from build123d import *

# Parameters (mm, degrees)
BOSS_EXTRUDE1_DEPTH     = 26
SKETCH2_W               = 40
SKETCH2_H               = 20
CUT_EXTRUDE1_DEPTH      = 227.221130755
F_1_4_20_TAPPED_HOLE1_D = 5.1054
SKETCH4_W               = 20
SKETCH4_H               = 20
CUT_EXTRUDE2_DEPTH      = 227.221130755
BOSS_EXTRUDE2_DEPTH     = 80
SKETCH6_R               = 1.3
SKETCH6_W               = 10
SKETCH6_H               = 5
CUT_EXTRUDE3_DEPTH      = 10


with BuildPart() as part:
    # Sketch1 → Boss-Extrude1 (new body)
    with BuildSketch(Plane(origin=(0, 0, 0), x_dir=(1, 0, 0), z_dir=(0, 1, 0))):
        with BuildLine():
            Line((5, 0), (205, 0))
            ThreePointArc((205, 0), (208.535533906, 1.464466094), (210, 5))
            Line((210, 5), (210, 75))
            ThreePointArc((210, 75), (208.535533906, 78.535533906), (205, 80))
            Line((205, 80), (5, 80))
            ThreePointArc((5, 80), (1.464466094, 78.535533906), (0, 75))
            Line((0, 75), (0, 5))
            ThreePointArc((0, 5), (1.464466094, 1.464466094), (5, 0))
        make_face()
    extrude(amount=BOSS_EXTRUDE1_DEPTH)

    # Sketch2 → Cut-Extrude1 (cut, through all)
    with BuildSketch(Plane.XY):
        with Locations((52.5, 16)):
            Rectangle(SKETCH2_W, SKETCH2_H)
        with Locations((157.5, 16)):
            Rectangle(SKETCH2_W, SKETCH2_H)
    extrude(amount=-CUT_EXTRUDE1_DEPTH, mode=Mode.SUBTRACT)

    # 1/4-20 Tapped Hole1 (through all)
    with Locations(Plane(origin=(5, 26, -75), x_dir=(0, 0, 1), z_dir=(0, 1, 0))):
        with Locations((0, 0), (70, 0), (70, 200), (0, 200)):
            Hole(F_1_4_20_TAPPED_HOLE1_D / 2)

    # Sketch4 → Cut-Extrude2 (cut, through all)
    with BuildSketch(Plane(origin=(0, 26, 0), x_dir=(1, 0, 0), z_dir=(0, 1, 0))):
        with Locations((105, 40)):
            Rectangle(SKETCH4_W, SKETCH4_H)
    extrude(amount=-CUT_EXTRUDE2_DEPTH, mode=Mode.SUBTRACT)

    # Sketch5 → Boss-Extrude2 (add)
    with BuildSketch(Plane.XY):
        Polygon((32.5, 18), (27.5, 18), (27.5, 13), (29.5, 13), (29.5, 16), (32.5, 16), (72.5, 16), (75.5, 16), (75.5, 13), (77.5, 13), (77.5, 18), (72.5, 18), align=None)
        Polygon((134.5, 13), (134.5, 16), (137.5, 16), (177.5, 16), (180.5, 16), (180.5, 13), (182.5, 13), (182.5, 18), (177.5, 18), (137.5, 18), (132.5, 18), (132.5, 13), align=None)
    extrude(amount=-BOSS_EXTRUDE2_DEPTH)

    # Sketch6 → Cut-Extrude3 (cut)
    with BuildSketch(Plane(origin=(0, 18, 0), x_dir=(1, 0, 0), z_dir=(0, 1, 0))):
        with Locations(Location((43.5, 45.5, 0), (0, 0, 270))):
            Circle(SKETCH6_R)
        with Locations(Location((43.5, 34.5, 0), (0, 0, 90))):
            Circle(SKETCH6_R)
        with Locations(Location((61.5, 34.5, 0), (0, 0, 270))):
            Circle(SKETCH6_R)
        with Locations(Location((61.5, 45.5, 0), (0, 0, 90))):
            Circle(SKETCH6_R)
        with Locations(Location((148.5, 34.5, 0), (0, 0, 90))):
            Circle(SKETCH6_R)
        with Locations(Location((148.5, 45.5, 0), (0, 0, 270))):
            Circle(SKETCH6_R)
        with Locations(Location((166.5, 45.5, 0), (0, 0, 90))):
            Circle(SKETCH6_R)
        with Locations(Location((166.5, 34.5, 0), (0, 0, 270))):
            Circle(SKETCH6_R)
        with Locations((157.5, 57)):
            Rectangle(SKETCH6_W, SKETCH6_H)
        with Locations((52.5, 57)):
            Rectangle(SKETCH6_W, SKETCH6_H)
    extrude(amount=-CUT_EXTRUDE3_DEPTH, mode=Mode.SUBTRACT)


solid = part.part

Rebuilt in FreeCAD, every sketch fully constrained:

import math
import FreeCAD as App
import Part
import Sketcher
from FreeCAD import Vector


def add_polygon(sketch, points):
    """Adds a closed chain of lines whose ends are joined by coincident constraints."""
    first, n = sketch.GeometryCount, len(points)
    for a, b in zip(points, points[1:] + points[:1]):
        sketch.addGeometry(Part.LineSegment(App.Vector(*a, 0), App.Vector(*b, 0)), False)
    for i in range(n):
        sketch.addConstraint(Sketcher.Constraint("Coincident", first + i, 2, first + (i + 1) % n, 1))

doc = App.newDocument("Part")
body = doc.addObject("PartDesign::Body", "Body")

sketch1 = body.newObject("Sketcher::SketchObject", "Sketch")
sketch1.AttachmentSupport = (doc.getObject("XZ_Plane"), [""])
sketch1.MapMode = "FlatFace"
sketch1.addGeometry(Part.LineSegment(Vector(5, 0, 0), Vector(205, 0, 0)), False)
sketch1.addGeometry(Part.ArcOfCircle(Part.Circle(Vector(205, -5, 0), Vector(0, 0, 1), 5), math.radians(0), math.radians(90)), False)
sketch1.addGeometry(Part.LineSegment(Vector(210, -5, 0), Vector(210, -75, 0)), False)
sketch1.addGeometry(Part.ArcOfCircle(Part.Circle(Vector(205, -75, 0), Vector(0, 0, 1), 5), math.radians(-90), math.radians(0)), False)
sketch1.addGeometry(Part.LineSegment(Vector(205, -80, 0), Vector(5, -80, 0)), False)
sketch1.addGeometry(Part.ArcOfCircle(Part.Circle(Vector(5, -75, 0), Vector(0, 0, 1), 5), math.radians(180), math.radians(270)), False)
sketch1.addGeometry(Part.LineSegment(Vector(0, -75, 0), Vector(0, -5, 0)), False)
sketch1.addGeometry(Part.ArcOfCircle(Part.Circle(Vector(5, -5, 0), Vector(0, 0, 1), 5), math.radians(90), math.radians(180)), False)
sketch1.addConstraint(Sketcher.Constraint("Tangent", 0, 2, 1, 2))
sketch1.addConstraint(Sketcher.Constraint("Tangent", 1, 1, 2, 1))
sketch1.addConstraint(Sketcher.Constraint("Tangent", 2, 2, 3, 2))
sketch1.addConstraint(Sketcher.Constraint("Tangent", 3, 1, 4, 1))
sketch1.addConstraint(Sketcher.Constraint("Tangent", 4, 2, 5, 2))
sketch1.addConstraint(Sketcher.Constraint("Tangent", 5, 1, 6, 1))
sketch1.addConstraint(Sketcher.Constraint("Tangent", 6, 2, 7, 2))
sketch1.addConstraint(Sketcher.Constraint("Tangent", 7, 1, 0, 1))
sketch1.addConstraint(Sketcher.Constraint("Horizontal", 0))
sketch1.addConstraint(Sketcher.Constraint("Vertical", 2))
sketch1.addConstraint(Sketcher.Constraint("Horizontal", 4))
sketch1.addConstraint(Sketcher.Constraint("Vertical", 6))
sketch1.addConstraint(Sketcher.Constraint("Equal", 1, 3))
sketch1.addConstraint(Sketcher.Constraint("Equal", 3, 5))
sketch1.addConstraint(Sketcher.Constraint("Equal", 5, 7))
sketch1.addConstraint(Sketcher.Constraint("PointOnObject", 0, 2, -1))
sketch1.addConstraint(Sketcher.Constraint("PointOnObject", 5, 1, -2))
sketch1.addConstraint(Sketcher.Constraint("Radius", 1, 5.0))
sketch1.addConstraint(Sketcher.Constraint("DistanceX", 0, 1, 0, 2, 200.0))
sketch1.addConstraint(Sketcher.Constraint("DistanceY", 2, 2, 2, 1, 70.0))
pad1 = body.newObject("PartDesign::Pad", "Pad")
pad1.Profile = sketch1
pad1.Length = 26
pad1.Reversed = True

sketch2 = body.newObject("Sketcher::SketchObject", "Sketch001")
sketch2.AttachmentSupport = (doc.getObject("XY_Plane"), [""])
sketch2.MapMode = "FlatFace"
add_polygon(sketch2, [(32, 26), (32, 6), (72, 6), (72, 26)])
add_polygon(sketch2, [(138, 26), (138, 6), (178, 6), (178, 26)])
sketch2.addConstraint(Sketcher.Constraint("Vertical", 0))
sketch2.addConstraint(Sketcher.Constraint("Horizontal", 1))
sketch2.addConstraint(Sketcher.Constraint("Vertical", 2))
sketch2.addConstraint(Sketcher.Constraint("Horizontal", 3))
sketch2.addConstraint(Sketcher.Constraint("Vertical", 4))
sketch2.addConstraint(Sketcher.Constraint("Horizontal", 5))
sketch2.addConstraint(Sketcher.Constraint("Vertical", 6))
sketch2.addConstraint(Sketcher.Constraint("Horizontal", 7))
sketch2.addConstraint(Sketcher.Constraint("Horizontal", 1, 2, 4, 2))
sketch2.addConstraint(Sketcher.Constraint("Horizontal", 3, 2, 6, 2))
sketch2.addConstraint(Sketcher.Constraint("Equal", 3, 5))
sketch2.addConstraint(Sketcher.Constraint("DistanceX", 1, 1, 1, 2, 40.0))
sketch2.addConstraint(Sketcher.Constraint("DistanceY", 0, 2, 0, 1, 20.0))
sketch2.addConstraint(Sketcher.Constraint("DistanceY", -1, 1, 0, 2, 6.0))
sketch2.addConstraint(Sketcher.Constraint("DistanceX", 1, 2, 4, 2, 65.0))
sketch2.addConstraint(Sketcher.Constraint("DistanceX", -1, 1, 0, 2, 32.5))
pocket1 = body.newObject("PartDesign::Pocket", "Pocket")
pocket1.Profile = sketch2
pocket1.Type = "ThroughAll"

sketch3 = body.newObject("Sketcher::SketchObject", "Sketch002")
sketch3.AttachmentSupport = (doc.getObject("XZ_Plane"), [""])
sketch3.MapMode = "FlatFace"
sketch3.AttachmentOffset = App.Placement(Vector(0, 0, -26), App.Rotation())
sketch3.addGeometry(Part.Circle(Vector(5, -75, 0), Vector(0, 0, 1), 2.6), False)
sketch3.addGeometry(Part.Circle(Vector(5, -5, 0), Vector(0, 0, 1), 2.6), False)
sketch3.addGeometry(Part.Circle(Vector(205, -5, 0), Vector(0, 0, 1), 2.6), False)
sketch3.addGeometry(Part.Circle(Vector(205, -75, 0), Vector(0, 0, 1), 2.6), False)
sketch3.addConstraint(Sketcher.Constraint("Equal", 0, 1))
sketch3.addConstraint(Sketcher.Constraint("Equal", 1, 2))
sketch3.addConstraint(Sketcher.Constraint("Equal", 2, 3))
sketch3.addConstraint(Sketcher.Constraint("Horizontal", 1, 3, 2, 3))
sketch3.addConstraint(Sketcher.Constraint("Horizontal", 0, 3, 3, 3))
sketch3.addConstraint(Sketcher.Constraint("Vertical", 0, 3, 1, 3))
sketch3.addConstraint(Sketcher.Constraint("Vertical", 2, 3, 3, 3))
sketch3.addConstraint(Sketcher.Constraint("DistanceX", -1, 1, 0, 3, 5.0))
sketch3.addConstraint(Sketcher.Constraint("DistanceY", 0, 3, -1, 1, 75.0))
sketch3.addConstraint(Sketcher.Constraint("DistanceY", 1, 3, -1, 1, 5.0))
sketch3.addConstraint(Sketcher.Constraint("DistanceX", -1, 1, 2, 3, 205.0))
sketch3.addConstraint(Sketcher.Constraint("Diameter", 0, 5.1054))
doc.recompute()
hole = body.newObject("PartDesign::Hole", "Hole")
hole.Profile = sketch3
hole.ThreadType = "None"
hole.Diameter = 5.1054
hole.DepthType = "ThroughAll"
hole.Reversed = True

sketch4 = body.newObject("Sketcher::SketchObject", "Sketch003")
sketch4.AttachmentSupport = (doc.getObject("XZ_Plane"), [""])
sketch4.MapMode = "FlatFace"
sketch4.AttachmentOffset = App.Placement(Vector(0, 0, -26), App.Rotation())
add_polygon(sketch4, [(95, -50), (95, -30), (115, -30), (115, -50)])
sketch4.addConstraint(Sketcher.Constraint("Vertical", 0))
sketch4.addConstraint(Sketcher.Constraint("Horizontal", 1))
sketch4.addConstraint(Sketcher.Constraint("Vertical", 2))
sketch4.addConstraint(Sketcher.Constraint("Horizontal", 3))
sketch4.addConstraint(Sketcher.Constraint("Equal", 3, 0))
sketch4.addConstraint(Sketcher.Constraint("DistanceX", 1, 1, 1, 2, 20.0))
sketch4.addConstraint(Sketcher.Constraint("DistanceX", -1, 1, 0, 2, 95.0))
sketch4.addConstraint(Sketcher.Constraint("DistanceY", 0, 2, -1, 1, 30.0))
pocket2 = body.newObject("PartDesign::Pocket", "Pocket001")
pocket2.Profile = sketch4
pocket2.Type = "ThroughAll"
pocket2.Reversed = True

sketch5 = body.newObject("Sketcher::SketchObject", "Sketch004")
sketch5.AttachmentSupport = (doc.getObject("XY_Plane"), [""])
sketch5.MapMode = "FlatFace"
add_polygon(sketch5, [(27.5, 18), (27.5, 13), (29.5, 13), (29.5, 16), (75.5, 16), (75.5, 13), (77.5, 13), (77.5, 18)])
add_polygon(sketch5, [(134.5, 13), (134.5, 16), (180.5, 16), (180.5, 13), (182.5, 13), (182.5, 18), (132.5, 18), (132.5, 13)])
sketch5.addConstraint(Sketcher.Constraint("Vertical", 0))
sketch5.addConstraint(Sketcher.Constraint("Horizontal", 1))
sketch5.addConstraint(Sketcher.Constraint("Vertical", 2))
sketch5.addConstraint(Sketcher.Constraint("Horizontal", 3))
sketch5.addConstraint(Sketcher.Constraint("Vertical", 4))
sketch5.addConstraint(Sketcher.Constraint("Horizontal", 5))
sketch5.addConstraint(Sketcher.Constraint("Vertical", 6))
sketch5.addConstraint(Sketcher.Constraint("Horizontal", 7))
sketch5.addConstraint(Sketcher.Constraint("Vertical", 8))
sketch5.addConstraint(Sketcher.Constraint("Horizontal", 9))
sketch5.addConstraint(Sketcher.Constraint("Vertical", 10))
sketch5.addConstraint(Sketcher.Constraint("Horizontal", 11))
sketch5.addConstraint(Sketcher.Constraint("Vertical", 12))
sketch5.addConstraint(Sketcher.Constraint("Horizontal", 13))
sketch5.addConstraint(Sketcher.Constraint("Vertical", 14))
sketch5.addConstraint(Sketcher.Constraint("Horizontal", 15))
sketch5.addConstraint(Sketcher.Constraint("Horizontal", 1, 2, 4, 2))
sketch5.addConstraint(Sketcher.Constraint("Horizontal", 3, 2, 8, 2))
sketch5.addConstraint(Sketcher.Constraint("Horizontal", 5, 2, 10, 2))
sketch5.addConstraint(Sketcher.Constraint("Horizontal", 7, 2, 12, 2))
sketch5.addConstraint(Sketcher.Constraint("Horizontal", 11, 2, 14, 2))
sketch5.addConstraint(Sketcher.Constraint("Equal", 1, 5))
sketch5.addConstraint(Sketcher.Constraint("Equal", 3, 9))
sketch5.addConstraint(Sketcher.Constraint("Equal", 5, 11))
sketch5.addConstraint(Sketcher.Constraint("Equal", 7, 13))
sketch5.addConstraint(Sketcher.Constraint("DistanceX", 1, 1, 1, 2, 2.0))
sketch5.addConstraint(Sketcher.Constraint("DistanceX", 3, 1, 3, 2, 46.0))
sketch5.addConstraint(Sketcher.Constraint("DistanceY", 0, 2, 0, 1, 5.0))
sketch5.addConstraint(Sketcher.Constraint("DistanceY", 2, 1, 2, 2, 3.0))
sketch5.addConstraint(Sketcher.Constraint("DistanceY", -1, 1, 0, 2, 13.0))
sketch5.addConstraint(Sketcher.Constraint("DistanceX", 6, 2, 8, 2, 57.0))
sketch5.addConstraint(Sketcher.Constraint("DistanceX", -1, 1, 0, 2, 27.5))
pad2 = body.newObject("PartDesign::Pad", "Pad001")
pad2.Profile = sketch5
pad2.Length = 80
pad2.Reversed = True

sketch6 = body.newObject("Sketcher::SketchObject", "Sketch005")
sketch6.AttachmentSupport = (doc.getObject("XZ_Plane"), [""])
sketch6.MapMode = "FlatFace"
sketch6.AttachmentOffset = App.Placement(Vector(0, 0, -18), App.Rotation())
sketch6.addGeometry(Part.Circle(Vector(43.5, -45.5, 0), Vector(0, 0, 1), 1.3), False)
sketch6.addGeometry(Part.Circle(Vector(43.5, -34.5, 0), Vector(0, 0, 1), 1.3), False)
sketch6.addGeometry(Part.Circle(Vector(61.5, -34.5, 0), Vector(0, 0, 1), 1.3), False)
sketch6.addGeometry(Part.Circle(Vector(61.5, -45.5, 0), Vector(0, 0, 1), 1.3), False)
sketch6.addGeometry(Part.Circle(Vector(148.5, -34.5, 0), Vector(0, 0, 1), 1.3), False)
sketch6.addGeometry(Part.Circle(Vector(148.5, -45.5, 0), Vector(0, 0, 1), 1.3), False)
sketch6.addGeometry(Part.Circle(Vector(166.5, -45.5, 0), Vector(0, 0, 1), 1.3), False)
sketch6.addGeometry(Part.Circle(Vector(166.5, -34.5, 0), Vector(0, 0, 1), 1.3), False)
add_polygon(sketch6, [(152.5, -59.5), (152.5, -54.5), (162.5, -54.5), (162.5, -59.5)])
add_polygon(sketch6, [(47.5, -59.5), (47.5, -54.5), (57.5, -54.5), (57.5, -59.5)])
sketch6.addConstraint(Sketcher.Constraint("Vertical", 8))
sketch6.addConstraint(Sketcher.Constraint("Horizontal", 9))
sketch6.addConstraint(Sketcher.Constraint("Vertical", 10))
sketch6.addConstraint(Sketcher.Constraint("Horizontal", 11))
sketch6.addConstraint(Sketcher.Constraint("Vertical", 12))
sketch6.addConstraint(Sketcher.Constraint("Horizontal", 13))
sketch6.addConstraint(Sketcher.Constraint("Vertical", 14))
sketch6.addConstraint(Sketcher.Constraint("Horizontal", 15))
sketch6.addConstraint(Sketcher.Constraint("Equal", 0, 1))
sketch6.addConstraint(Sketcher.Constraint("Equal", 1, 2))
sketch6.addConstraint(Sketcher.Constraint("Equal", 2, 3))
sketch6.addConstraint(Sketcher.Constraint("Equal", 3, 4))
sketch6.addConstraint(Sketcher.Constraint("Equal", 4, 5))
sketch6.addConstraint(Sketcher.Constraint("Equal", 5, 6))
sketch6.addConstraint(Sketcher.Constraint("Equal", 6, 7))
sketch6.addConstraint(Sketcher.Constraint("Horizontal", 1, 3, 2, 3))
sketch6.addConstraint(Sketcher.Constraint("Horizontal", 0, 3, 3, 3))
sketch6.addConstraint(Sketcher.Constraint("Horizontal", 2, 3, 4, 3))
sketch6.addConstraint(Sketcher.Constraint("Horizontal", 3, 3, 5, 3))
sketch6.addConstraint(Sketcher.Constraint("Horizontal", 5, 3, 6, 3))
sketch6.addConstraint(Sketcher.Constraint("Horizontal", 4, 3, 7, 3))
sketch6.addConstraint(Sketcher.Constraint("Horizontal", 9, 2, 12, 2))
sketch6.addConstraint(Sketcher.Constraint("Horizontal", 11, 2, 14, 2))
sketch6.addConstraint(Sketcher.Constraint("Vertical", 0, 3, 1, 3))
sketch6.addConstraint(Sketcher.Constraint("Vertical", 2, 3, 3, 3))
sketch6.addConstraint(Sketcher.Constraint("Vertical", 4, 3, 5, 3))
sketch6.addConstraint(Sketcher.Constraint("Vertical", 6, 3, 7, 3))
sketch6.addConstraint(Sketcher.Constraint("Equal", 11, 13))
sketch6.addConstraint(Sketcher.Constraint("Diameter", 0, 2.6))
sketch6.addConstraint(Sketcher.Constraint("DistanceX", 9, 1, 9, 2, 10.0))
sketch6.addConstraint(Sketcher.Constraint("DistanceY", 8, 1, 8, 2, 5.0))
sketch6.addConstraint(Sketcher.Constraint("DistanceY", 0, 3, 1, 3, 11.0))
sketch6.addConstraint(Sketcher.Constraint("DistanceX", 1, 3, 2, 3, 18.0))
sketch6.addConstraint(Sketcher.Constraint("DistanceX", 2, 3, 4, 3, 87.0))
sketch6.addConstraint(Sketcher.Constraint("DistanceX", 5, 3, 6, 3, 18.0))
sketch6.addConstraint(Sketcher.Constraint("DistanceX", 5, 3, 8, 2, 4.0))
sketch6.addConstraint(Sketcher.Constraint("DistanceY", 8, 2, 5, 3, 9.0))
sketch6.addConstraint(Sketcher.Constraint("DistanceX", 0, 3, 12, 2, 4.0))
sketch6.addConstraint(Sketcher.Constraint("DistanceX", -1, 1, 0, 3, 43.5))
sketch6.addConstraint(Sketcher.Constraint("DistanceY", 0, 3, -1, 1, 45.5))
pocket3 = body.newObject("PartDesign::Pocket", "Pocket002")
pocket3.Profile = sketch6
pocket3.Length = 10
pocket3.Reversed = True

doc.recompute()
